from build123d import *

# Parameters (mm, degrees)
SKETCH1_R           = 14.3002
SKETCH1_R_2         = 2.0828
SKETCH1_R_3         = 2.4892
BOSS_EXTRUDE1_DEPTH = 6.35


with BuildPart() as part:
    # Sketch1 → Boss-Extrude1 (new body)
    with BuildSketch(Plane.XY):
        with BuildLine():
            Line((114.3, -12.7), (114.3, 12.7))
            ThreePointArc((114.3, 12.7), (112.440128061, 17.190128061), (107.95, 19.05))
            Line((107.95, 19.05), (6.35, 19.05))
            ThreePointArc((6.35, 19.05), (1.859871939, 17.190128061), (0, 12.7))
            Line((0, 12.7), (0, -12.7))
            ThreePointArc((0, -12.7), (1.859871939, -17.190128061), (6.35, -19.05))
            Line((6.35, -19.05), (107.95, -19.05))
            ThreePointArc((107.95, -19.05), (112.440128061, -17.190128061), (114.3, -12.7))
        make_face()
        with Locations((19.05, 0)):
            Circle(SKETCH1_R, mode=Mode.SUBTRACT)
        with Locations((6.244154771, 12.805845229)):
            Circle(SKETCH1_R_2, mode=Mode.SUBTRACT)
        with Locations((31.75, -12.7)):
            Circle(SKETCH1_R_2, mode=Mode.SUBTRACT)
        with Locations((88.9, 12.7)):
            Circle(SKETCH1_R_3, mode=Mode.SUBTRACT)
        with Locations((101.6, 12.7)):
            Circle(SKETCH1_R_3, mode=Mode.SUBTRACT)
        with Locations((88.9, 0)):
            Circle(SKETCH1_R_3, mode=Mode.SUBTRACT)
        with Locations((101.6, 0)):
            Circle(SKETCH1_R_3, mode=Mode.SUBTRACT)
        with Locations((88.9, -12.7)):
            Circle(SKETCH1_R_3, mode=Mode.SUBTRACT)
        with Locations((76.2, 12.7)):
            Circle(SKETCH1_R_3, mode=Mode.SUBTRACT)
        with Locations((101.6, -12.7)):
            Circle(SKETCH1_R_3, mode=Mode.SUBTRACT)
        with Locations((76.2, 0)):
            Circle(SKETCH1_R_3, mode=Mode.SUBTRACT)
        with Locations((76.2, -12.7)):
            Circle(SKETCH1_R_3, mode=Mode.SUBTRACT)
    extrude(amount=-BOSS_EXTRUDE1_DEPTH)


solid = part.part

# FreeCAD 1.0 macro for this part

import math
import FreeCAD as App
import Part
import Sketcher
Q = App.Units.Quantity

doc = App.newDocument("Part")
params = doc.addObject("Spreadsheet::Sheet", "Params")
for row, (alias, value) in enumerate([
    ("sketch1_width", "4 in"),
    ("sketch1_height", "1 in"),
    ("sketch1_radius", "0.25 in"),
    ("sketch1_diameter", "0.164 in"),
    ("sketch1_diameter2", "0.196 in"),
    ("pad1_length", "0.25 in"),
], start=1):
    params.set(f"A{row}", alias)
    params.set(f"B{row}", "=" + value)
    params.setAlias(f"B{row}", alias)

body = doc.addObject("PartDesign::Body", "Body")

sketch1 = doc.addObject("Sketcher::SketchObject", "Sketch")
body.addObject(sketch1)
sketch1.AttachmentSupport = (doc.XY_Plane, [""])
sketch1.MapMode = "FlatFace"
sketch1.addGeometry([
    Part.LineSegment(App.Vector(114.3, -12.7, 0), App.Vector(114.3, 12.7, 0)),
    Part.ArcOfCircle(Part.Circle(App.Vector(108, 12.7, 0), App.Vector(0, 0, 1), 6.3), math.radians(0), math.radians(90)),
    Part.LineSegment(App.Vector(108, 19.1, 0), App.Vector(6.3, 19.1, 0)),
    Part.ArcOfCircle(Part.Circle(App.Vector(6.3, 12.7, 0), App.Vector(0, 0, 1), 6.3), math.radians(90), math.radians(180)),
    Part.LineSegment(App.Vector(0, 12.7, 0), App.Vector(0, -12.7, 0)),
    Part.ArcOfCircle(Part.Circle(App.Vector(6.3, -12.7, 0), App.Vector(0, 0, 1), 6.3), math.radians(180), math.radians(270)),
    Part.LineSegment(App.Vector(6.3, -19.1, 0), App.Vector(108, -19.1, 0)),
    Part.ArcOfCircle(Part.Circle(App.Vector(108, -12.7, 0), App.Vector(0, 0, 1), 6.3), math.radians(-90), math.radians(0)),
    Part.Circle(App.Vector(31.8, -12.7, 0), App.Vector(0, 0, 1), 2.1),
    Part.Circle(App.Vector(76.2, -12.7, 0), App.Vector(0, 0, 1), 2.5),
    Part.Circle(App.Vector(88.9, -12.7, 0), App.Vector(0, 0, 1), 2.5),
    Part.Circle(App.Vector(101.6, -12.7, 0), App.Vector(0, 0, 1), 2.5),
    Part.Circle(App.Vector(19.1, 0, 0), App.Vector(0, 0, 1), 14.3),
    Part.Circle(App.Vector(6.2, 12.8, 0), App.Vector(0, 0, 1), 2.1),
    Part.Circle(App.Vector(76.2, 0, 0), App.Vector(0, 0, 1), 2.5),
    Part.Circle(App.Vector(88.9, 0, 0), App.Vector(0, 0, 1), 2.5),
    Part.Circle(App.Vector(101.6, 0, 0), App.Vector(0, 0, 1), 2.5),
    Part.Circle(App.Vector(76.2, 12.7, 0), App.Vector(0, 0, 1), 2.5),
    Part.Circle(App.Vector(88.9, 12.7, 0), App.Vector(0, 0, 1), 2.5),
    Part.Circle(App.Vector(101.6, 12.7, 0), App.Vector(0, 0, 1), 2.5),
], False)
sketch1.addConstraint([
    Sketcher.Constraint("Tangent", 0, 2, 1, 1),
    Sketcher.Constraint("Tangent", 1, 2, 2, 1),
    Sketcher.Constraint("Tangent", 2, 2, 3, 1),
    Sketcher.Constraint("Tangent", 3, 2, 4, 1),
    Sketcher.Constraint("Tangent", 4, 2, 5, 1),
    Sketcher.Constraint("Tangent", 5, 2, 6, 1),
    Sketcher.Constraint("Tangent", 6, 2, 7, 1),
    Sketcher.Constraint("Tangent", 7, 2, 0, 1),
    Sketcher.Constraint("Vertical", 0),
    Sketcher.Constraint("Horizontal", 2),
    Sketcher.Constraint("Vertical", 4),
    Sketcher.Constraint("Horizontal", 6),
    Sketcher.Constraint("Equal", 1, 3),
    Sketcher.Constraint("Equal", 3, 5),
    Sketcher.Constraint("Equal", 5, 7),
    Sketcher.Constraint("Equal", 9, 10),
    Sketcher.Constraint("Equal", 10, 11),
    Sketcher.Constraint("Equal", 8, 13),
    Sketcher.Constraint("Equal", 11, 14),
    Sketcher.Constraint("Equal", 14, 15),
    Sketcher.Constraint("Equal", 15, 16),
    Sketcher.Constraint("Equal", 16, 17),
    Sketcher.Constraint("Equal", 17, 18),
    Sketcher.Constraint("Equal", 18, 19),
    Sketcher.Constraint("Symmetric", 3, 2, 4, 2, -1, 1),
    Sketcher.Constraint("Symmetric", 9, 3, 17, 3, -1),
    Sketcher.Constraint("Symmetric", 10, 3, 18, 3, -1),
    Sketcher.Constraint("Symmetric", 11, 3, 19, 3, -1),
    Sketcher.Constraint("PointOnObject", 12, 3, -1),
    Sketcher.Constraint("PointOnObject", 14, 3, -1),
    Sketcher.Constraint("PointOnObject", 15, 3, -1),
    Sketcher.Constraint("PointOnObject", 16, 3, -1),
    Sketcher.Constraint("Horizontal", 7, 3, 8, 3),
    Sketcher.Constraint("Horizontal", 8, 3, 9, 3),
    Sketcher.Constraint("Horizontal", 9, 3, 10, 3),
    Sketcher.Constraint("Horizontal", 10, 3, 11, 3),
    Sketcher.Constraint("Vertical", 9, 3, 14, 3),
    Sketcher.Constraint("Vertical", 10, 3, 15, 3),
    Sketcher.Constraint("Vertical", 11, 3, 16, 3),
    Sketcher.Constraint("DistanceX", 2, 2, 2, 1, Q("4 in")),
    Sketcher.Constraint("DistanceY", 0, 1, 0, 2, Q("1 in")),
    Sketcher.Constraint("Radius", 1, Q("0.25 in")),
    Sketcher.Constraint("Diameter", 8, Q("0.164 in")),
    Sketcher.Constraint("Diameter", 9, Q("0.196 in")),
    Sketcher.Constraint("Diameter", 12, Q("1.126 in")),
    Sketcher.Constraint("DistanceX", -1, 1, 9, 3, Q("3 in")),
    Sketcher.Constraint("DistanceX", -1, 1, 11, 3, Q("4 in")),
    Sketcher.Constraint("DistanceX", 5, 3, 8, 3, Q("1 in")),
    Sketcher.Constraint("DistanceX", 18, 3, 0, 2, Q("1 in")),
    Sketcher.Constraint("DistanceX", 12, 3, 8, 3, Q("0.5 in")),
    Sketcher.Constraint("DistanceX", -1, 1, 13, 3, 6.244155),
    Sketcher.Constraint("DistanceY", -1, 1, 13, 3, 12.805845),
])
sketch1.setExpression("Constraints[39]", "Params.sketch1_width")
sketch1.setExpression("Constraints[40]", "Params.sketch1_height")
sketch1.setExpression("Constraints[41]", "Params.sketch1_radius")
sketch1.setExpression("Constraints[42]", "Params.sketch1_diameter")
sketch1.setExpression("Constraints[43]", "Params.sketch1_diameter2")
pad1 = doc.addObject("PartDesign::Pad", "Pad")
body.addObject(pad1)
pad1.Profile = sketch1
pad1.setExpression("Length", "Params.pad1_length")
pad1.Reversed = True

doc.recompute()
